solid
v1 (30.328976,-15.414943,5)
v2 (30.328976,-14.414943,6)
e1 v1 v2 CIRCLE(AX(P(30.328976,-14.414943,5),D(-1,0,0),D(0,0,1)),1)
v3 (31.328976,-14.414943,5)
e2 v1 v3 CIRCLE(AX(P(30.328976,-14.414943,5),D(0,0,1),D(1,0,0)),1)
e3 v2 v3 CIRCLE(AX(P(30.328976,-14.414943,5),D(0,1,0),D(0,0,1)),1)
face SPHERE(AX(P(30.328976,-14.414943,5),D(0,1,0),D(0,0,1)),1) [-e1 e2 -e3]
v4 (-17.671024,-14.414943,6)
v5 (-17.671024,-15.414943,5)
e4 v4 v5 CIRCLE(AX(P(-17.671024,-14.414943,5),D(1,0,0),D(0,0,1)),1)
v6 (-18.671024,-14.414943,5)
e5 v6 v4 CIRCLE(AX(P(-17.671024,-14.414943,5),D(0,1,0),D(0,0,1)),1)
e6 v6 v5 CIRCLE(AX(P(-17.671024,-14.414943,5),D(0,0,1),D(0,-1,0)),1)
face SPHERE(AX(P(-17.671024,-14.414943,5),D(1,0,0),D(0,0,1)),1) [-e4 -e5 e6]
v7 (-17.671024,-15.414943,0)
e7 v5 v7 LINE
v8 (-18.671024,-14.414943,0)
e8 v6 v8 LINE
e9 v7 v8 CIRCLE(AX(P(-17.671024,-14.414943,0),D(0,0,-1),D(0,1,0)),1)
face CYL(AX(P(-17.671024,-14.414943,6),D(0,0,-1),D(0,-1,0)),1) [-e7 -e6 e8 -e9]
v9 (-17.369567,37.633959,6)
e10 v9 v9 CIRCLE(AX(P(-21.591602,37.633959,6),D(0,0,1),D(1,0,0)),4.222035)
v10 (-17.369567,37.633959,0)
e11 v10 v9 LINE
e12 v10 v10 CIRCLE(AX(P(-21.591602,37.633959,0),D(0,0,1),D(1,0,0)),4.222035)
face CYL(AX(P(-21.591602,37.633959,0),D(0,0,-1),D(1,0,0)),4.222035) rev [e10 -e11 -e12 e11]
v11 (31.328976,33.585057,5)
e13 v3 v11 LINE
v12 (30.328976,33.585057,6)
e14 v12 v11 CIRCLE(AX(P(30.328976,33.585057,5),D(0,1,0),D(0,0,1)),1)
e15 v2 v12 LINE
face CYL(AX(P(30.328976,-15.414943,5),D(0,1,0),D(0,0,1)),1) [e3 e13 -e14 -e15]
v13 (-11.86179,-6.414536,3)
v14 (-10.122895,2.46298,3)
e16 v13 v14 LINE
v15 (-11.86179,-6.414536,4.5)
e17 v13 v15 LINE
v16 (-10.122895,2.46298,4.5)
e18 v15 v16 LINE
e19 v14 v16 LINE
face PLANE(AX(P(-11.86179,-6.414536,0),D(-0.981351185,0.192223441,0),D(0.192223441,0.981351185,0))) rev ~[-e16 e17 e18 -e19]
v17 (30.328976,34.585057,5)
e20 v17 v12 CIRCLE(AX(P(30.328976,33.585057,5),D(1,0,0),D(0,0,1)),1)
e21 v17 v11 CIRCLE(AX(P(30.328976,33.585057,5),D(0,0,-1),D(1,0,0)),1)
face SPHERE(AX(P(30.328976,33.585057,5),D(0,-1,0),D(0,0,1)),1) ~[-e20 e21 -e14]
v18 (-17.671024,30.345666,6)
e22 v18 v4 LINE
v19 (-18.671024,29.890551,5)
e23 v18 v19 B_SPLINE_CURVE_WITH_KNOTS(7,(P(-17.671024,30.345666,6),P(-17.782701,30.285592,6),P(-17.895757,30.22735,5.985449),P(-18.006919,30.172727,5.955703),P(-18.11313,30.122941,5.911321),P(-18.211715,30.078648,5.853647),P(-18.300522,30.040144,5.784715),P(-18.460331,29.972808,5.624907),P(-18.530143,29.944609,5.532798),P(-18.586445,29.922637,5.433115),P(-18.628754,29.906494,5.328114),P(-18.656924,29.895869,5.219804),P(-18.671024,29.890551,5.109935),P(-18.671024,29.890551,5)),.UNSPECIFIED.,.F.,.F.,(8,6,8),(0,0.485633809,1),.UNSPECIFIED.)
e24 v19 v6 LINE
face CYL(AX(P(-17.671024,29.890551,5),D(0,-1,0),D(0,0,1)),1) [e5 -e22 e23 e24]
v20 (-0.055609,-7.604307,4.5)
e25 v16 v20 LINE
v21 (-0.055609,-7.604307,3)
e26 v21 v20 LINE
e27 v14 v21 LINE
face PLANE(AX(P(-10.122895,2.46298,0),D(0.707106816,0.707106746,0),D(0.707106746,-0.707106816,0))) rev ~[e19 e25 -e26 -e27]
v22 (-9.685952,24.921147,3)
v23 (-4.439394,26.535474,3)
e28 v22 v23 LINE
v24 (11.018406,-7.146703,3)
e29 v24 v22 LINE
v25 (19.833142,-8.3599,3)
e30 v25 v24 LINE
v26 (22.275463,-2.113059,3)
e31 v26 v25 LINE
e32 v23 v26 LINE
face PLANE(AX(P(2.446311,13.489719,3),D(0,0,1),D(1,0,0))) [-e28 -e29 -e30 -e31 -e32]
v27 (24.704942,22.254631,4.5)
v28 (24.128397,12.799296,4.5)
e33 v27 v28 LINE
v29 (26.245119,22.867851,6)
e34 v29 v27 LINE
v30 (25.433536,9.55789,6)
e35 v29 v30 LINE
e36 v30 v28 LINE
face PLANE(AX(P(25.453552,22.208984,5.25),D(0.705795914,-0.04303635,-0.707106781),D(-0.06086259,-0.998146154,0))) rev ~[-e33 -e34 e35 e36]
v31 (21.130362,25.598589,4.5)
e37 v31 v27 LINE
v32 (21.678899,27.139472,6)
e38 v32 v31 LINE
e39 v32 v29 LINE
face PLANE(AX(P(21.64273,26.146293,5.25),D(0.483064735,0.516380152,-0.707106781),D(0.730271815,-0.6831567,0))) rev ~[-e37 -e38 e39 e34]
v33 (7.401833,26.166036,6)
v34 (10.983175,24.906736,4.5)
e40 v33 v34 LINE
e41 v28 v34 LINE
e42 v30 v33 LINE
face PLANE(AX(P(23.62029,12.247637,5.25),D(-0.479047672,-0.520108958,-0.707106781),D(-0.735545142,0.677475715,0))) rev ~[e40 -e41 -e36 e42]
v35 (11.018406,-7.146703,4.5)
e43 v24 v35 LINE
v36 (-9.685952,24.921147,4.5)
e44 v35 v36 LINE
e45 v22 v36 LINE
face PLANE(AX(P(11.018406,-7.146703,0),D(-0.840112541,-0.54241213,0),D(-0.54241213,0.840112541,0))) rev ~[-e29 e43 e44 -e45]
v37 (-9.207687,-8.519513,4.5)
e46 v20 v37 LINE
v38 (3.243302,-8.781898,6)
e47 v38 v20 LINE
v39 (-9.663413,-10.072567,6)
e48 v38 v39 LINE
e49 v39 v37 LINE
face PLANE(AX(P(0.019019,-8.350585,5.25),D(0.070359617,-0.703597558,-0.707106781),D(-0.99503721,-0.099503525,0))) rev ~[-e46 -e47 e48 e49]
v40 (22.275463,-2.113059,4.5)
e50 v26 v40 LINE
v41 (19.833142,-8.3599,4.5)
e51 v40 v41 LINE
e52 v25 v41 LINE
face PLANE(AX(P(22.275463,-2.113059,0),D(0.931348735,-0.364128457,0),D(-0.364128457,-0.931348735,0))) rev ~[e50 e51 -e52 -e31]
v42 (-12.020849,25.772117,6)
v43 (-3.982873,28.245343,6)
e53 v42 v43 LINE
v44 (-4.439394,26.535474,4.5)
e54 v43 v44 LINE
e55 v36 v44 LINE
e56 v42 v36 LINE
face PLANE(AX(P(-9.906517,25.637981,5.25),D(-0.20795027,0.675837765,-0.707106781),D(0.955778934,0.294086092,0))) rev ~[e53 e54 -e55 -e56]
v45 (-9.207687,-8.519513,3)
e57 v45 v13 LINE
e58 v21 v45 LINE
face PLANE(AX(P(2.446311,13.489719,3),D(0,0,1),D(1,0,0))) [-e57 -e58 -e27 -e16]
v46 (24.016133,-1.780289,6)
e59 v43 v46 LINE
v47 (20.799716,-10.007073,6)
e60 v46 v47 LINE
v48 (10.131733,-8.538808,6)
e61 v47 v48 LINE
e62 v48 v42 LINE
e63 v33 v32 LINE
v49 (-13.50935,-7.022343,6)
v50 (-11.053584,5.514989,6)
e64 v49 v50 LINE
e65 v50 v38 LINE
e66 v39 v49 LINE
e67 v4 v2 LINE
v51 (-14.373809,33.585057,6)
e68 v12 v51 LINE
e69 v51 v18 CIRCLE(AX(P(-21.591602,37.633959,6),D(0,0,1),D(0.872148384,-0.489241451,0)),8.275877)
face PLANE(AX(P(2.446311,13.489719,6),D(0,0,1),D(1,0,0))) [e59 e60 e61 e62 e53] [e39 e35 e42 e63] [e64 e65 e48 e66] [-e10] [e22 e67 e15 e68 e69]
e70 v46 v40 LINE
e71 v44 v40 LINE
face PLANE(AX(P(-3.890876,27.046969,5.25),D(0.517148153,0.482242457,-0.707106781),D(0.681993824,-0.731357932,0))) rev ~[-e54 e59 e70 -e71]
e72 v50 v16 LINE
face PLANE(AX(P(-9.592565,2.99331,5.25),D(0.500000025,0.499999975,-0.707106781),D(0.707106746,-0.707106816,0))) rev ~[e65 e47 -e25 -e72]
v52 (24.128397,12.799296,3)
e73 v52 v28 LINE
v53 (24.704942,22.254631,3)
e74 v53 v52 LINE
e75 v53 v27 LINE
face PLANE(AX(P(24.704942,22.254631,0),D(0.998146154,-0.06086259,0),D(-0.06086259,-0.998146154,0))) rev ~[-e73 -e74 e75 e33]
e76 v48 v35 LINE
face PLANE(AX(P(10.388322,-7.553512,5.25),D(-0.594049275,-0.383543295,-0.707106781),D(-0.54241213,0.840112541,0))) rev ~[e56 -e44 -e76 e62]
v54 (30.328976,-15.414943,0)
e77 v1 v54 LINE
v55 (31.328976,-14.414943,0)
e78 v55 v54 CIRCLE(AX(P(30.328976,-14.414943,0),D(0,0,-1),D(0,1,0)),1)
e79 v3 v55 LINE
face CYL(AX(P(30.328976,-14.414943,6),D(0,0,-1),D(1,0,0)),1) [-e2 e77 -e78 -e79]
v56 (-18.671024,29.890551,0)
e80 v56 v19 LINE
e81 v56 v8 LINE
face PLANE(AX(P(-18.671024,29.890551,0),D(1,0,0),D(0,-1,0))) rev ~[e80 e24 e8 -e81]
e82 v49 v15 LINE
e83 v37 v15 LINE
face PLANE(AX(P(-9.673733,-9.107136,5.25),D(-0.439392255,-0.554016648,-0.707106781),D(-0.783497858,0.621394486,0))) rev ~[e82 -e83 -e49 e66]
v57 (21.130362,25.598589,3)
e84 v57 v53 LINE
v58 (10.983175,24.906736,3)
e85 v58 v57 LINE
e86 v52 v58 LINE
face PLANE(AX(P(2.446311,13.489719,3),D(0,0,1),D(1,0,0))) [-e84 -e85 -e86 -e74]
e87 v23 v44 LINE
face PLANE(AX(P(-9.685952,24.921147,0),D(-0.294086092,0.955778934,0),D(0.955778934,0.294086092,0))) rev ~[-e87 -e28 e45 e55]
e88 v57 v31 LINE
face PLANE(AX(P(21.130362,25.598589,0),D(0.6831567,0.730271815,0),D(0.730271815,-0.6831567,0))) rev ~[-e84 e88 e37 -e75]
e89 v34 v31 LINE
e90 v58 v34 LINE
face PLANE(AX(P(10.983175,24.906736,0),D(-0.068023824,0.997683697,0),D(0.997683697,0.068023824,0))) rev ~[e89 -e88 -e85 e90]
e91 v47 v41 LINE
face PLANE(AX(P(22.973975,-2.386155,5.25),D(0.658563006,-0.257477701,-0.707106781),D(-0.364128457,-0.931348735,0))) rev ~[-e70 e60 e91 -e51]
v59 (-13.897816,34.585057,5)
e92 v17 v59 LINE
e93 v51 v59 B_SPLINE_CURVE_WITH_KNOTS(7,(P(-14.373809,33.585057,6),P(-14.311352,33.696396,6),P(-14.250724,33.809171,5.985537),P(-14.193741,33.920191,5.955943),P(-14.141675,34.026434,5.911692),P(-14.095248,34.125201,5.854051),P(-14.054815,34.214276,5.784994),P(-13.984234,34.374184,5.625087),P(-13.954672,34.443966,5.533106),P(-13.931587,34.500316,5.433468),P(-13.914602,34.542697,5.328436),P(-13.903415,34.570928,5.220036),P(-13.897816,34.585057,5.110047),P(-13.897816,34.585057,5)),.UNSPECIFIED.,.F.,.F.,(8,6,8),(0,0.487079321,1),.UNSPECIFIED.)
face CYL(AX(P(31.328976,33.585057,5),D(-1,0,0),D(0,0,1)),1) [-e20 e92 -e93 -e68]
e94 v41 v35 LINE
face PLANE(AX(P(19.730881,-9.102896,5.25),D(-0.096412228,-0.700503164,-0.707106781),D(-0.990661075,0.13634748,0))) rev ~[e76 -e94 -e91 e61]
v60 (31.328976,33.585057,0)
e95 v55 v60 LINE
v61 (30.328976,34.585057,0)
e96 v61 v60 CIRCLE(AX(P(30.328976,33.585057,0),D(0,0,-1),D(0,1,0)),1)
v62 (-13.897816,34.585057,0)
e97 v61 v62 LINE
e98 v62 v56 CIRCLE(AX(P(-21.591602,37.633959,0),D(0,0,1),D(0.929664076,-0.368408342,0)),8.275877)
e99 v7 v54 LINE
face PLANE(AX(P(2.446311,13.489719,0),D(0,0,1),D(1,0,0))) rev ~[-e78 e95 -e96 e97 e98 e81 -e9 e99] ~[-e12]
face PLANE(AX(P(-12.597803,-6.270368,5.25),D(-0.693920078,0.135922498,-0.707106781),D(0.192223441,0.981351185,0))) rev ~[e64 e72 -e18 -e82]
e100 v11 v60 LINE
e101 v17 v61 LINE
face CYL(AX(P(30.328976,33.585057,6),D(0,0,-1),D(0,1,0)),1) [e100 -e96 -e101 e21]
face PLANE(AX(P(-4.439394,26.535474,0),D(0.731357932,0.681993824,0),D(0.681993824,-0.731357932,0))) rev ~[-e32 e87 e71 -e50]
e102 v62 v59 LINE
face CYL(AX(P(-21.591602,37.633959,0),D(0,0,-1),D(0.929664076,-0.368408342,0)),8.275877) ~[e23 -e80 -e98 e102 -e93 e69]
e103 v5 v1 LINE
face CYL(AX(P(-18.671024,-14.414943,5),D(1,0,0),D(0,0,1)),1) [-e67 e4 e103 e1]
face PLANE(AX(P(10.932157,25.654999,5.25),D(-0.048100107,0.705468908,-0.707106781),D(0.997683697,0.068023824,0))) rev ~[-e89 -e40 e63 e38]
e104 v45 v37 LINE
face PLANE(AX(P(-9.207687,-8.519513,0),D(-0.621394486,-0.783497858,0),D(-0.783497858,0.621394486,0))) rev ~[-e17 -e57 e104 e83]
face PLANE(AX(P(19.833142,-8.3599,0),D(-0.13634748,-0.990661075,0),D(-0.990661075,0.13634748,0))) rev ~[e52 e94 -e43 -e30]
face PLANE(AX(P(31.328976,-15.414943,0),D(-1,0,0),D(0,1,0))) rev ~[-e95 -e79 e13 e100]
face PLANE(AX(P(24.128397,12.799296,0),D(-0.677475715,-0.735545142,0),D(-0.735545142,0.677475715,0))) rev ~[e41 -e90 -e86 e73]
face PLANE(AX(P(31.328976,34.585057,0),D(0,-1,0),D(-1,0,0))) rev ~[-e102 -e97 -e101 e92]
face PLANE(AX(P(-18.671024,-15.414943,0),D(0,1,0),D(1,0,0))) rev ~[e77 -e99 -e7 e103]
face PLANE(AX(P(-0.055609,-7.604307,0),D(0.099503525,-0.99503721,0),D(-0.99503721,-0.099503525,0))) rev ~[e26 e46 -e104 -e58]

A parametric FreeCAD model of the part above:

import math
import FreeCAD as App
import Part
import Sketcher
Q = App.Units.Quantity


def edges_at(feature, points):
    """Names of the edges that pass closest to the given points."""
    edges = feature.Shape.Edges
    near = lambda p: min(range(len(edges)), key=lambda i: edges[i].distToShape(Part.Vertex(*p))[0])
    return sorted({f"Edge{near(p) + 1}" for p in points})


def add_polygon(sketch, points):
    """Adds a closed chain of lines whose ends are joined by coincident constraints."""
    first, n = sketch.GeometryCount, len(points)
    for a, b in zip(points, points[1:] + points[:1]):
        sketch.addGeometry(Part.LineSegment(App.Vector(*a, 0), App.Vector(*b, 0)), False)
    for i in range(n):
        sketch.addConstraint(Sketcher.Constraint("Coincident", first + i, 2, first + (i + 1) % n, 1))

doc = App.newDocument("Part")
body = doc.addObject("PartDesign::Body", "Body")

# Sketch on XY plane
sketch1 = doc.addObject("Sketcher::SketchObject", "Sketch")
body.addObject(sketch1)
sketch1.AttachmentSupport = (doc.XY_Plane, [""])
sketch1.MapMode = "FlatFace"
sketch1.addGeometry(Part.LineSegment(App.Vector(31.3, 34.6, 0), App.Vector(-13.9, 34.6, 0)), False)  # 0
sketch1.addGeometry(Part.ArcOfCircle(Part.Circle(App.Vector(-21.6, 37.6, 0), App.Vector(0, 0, 1), 8.3), math.radians(-22), math.radians(291)), False)  # 1
sketch1.addGeometry(Part.LineSegment(App.Vector(-18.7, 29.9, 0), App.Vector(-18.7, -15.4, 0)), False)  # 2
sketch1.addGeometry(Part.LineSegment(App.Vector(-18.7, -15.4, 0), App.Vector(31.3, -15.4, 0)), False)  # 3
sketch1.addGeometry(Part.LineSegment(App.Vector(31.3, -15.4, 0), App.Vector(31.3, 34.6, 0)), False)  # 4
add_polygon(sketch1, [(-11.9, -6.4), (-10.1, 2.5), (-0.1, -7.6), (-9.2, -8.5)])  # lines 5-8
add_polygon(sketch1, [(19.8, -8.4), (11, -7.1), (-9.7, 24.9), (-4.4, 26.5), (22.3, -2.1)])  # lines 9-13
sketch1.addGeometry(Part.Circle(App.Vector(-21.6, 37.6, 0), App.Vector(0, 0, 1), 4.2), False)  # 14
add_polygon(sketch1, [(24.7, 22.3), (24.1, 12.8), (11, 24.9), (21.1, 25.6)])  # lines 15-18
sketch1.addConstraint([
    Sketcher.Constraint("Coincident", 0, 2, 1, 1),
    Sketcher.Constraint("Coincident", 1, 2, 2, 1),
    Sketcher.Constraint("Coincident", 2, 2, 3, 1),
    Sketcher.Constraint("Coincident", 3, 2, 4, 1),
    Sketcher.Constraint("Coincident", 4, 2, 0, 1),
    Sketcher.Constraint("Horizontal", 0),
    Sketcher.Constraint("Vertical", 2),
    Sketcher.Constraint("Horizontal", 3),
    Sketcher.Constraint("Vertical", 4),
    Sketcher.Constraint("Coincident", 14, 3, 1, 3),
    Sketcher.Constraint("Equal", 3, 4),
    Sketcher.Constraint("DistanceX", 3, 1, 3, 2, 50.0),
    Sketcher.Constraint("Angle", 6, Q("-45.000003 deg")),
    Sketcher.Constraint("Diameter", 14, 8.44407),
    Sketcher.Constraint("Radius", 1, 8.275877),
    Sketcher.Constraint("DistanceY", 9, 2, 15, 2, 19.945999),
    Sketcher.Constraint("Distance", 11, 5.489301),
    Sketcher.Constraint("Distance", 12, 39.171699),
    Sketcher.Constraint("Distance", 16, 17.871401),
    Sketcher.Constraint("DistanceX", 1, 3, -1, 1, 21.591602),
    Sketcher.Constraint("DistanceY", 13, 2, -1, 1, 8.3599),
    Sketcher.Constraint("DistanceY", 0, 2, 14, 3, 3.048902),
    Sketcher.Constraint("DistanceX", 5, 2, 9, 2, 21.141301),
    Sketcher.Constraint("DistanceX", 16, 2, 4, 2, 20.345801),
    Sketcher.Constraint("DistanceX", 17, 2, 12, 2, 1.145101),
    Sketcher.Constraint("DistanceX", 0, 2, 0, 1, 45.226792),
    Sketcher.Constraint("DistanceY", -1, 1, 1, 3, 37.633959),
    Sketcher.Constraint("DistanceY", -1, 1, 5, 2, 2.46298),
    Sketcher.Constraint("DistanceX", 6, 2, -1, 1, 0.055609),
    Sketcher.Constraint("DistanceX", 8, 2, -1, 1, 11.86179),
    Sketcher.Constraint("DistanceY", 12, 2, -1, 1, 2.113059),
    Sketcher.Constraint("DistanceX", -1, 1, 13, 2, 19.833142),
    Sketcher.Constraint("DistanceY", -1, 1, 17, 2, 25.598589),
    Sketcher.Constraint("DistanceX", -1, 1, 18, 2, 24.704942),
    Sketcher.Constraint("DistanceY", -1, 1, 18, 2, 22.254631),
    Sketcher.Constraint("DistanceX", 2, 2, 5, 2, 8.548129),
    Sketcher.Constraint("DistanceY", 2, 2, 7, 2, 6.89543),
    Sketcher.Constraint("DistanceY", 6, 2, 8, 2, 1.189771),
    Sketcher.Constraint("DistanceY", 7, 2, 9, 2, 1.37281),
    Sketcher.Constraint("DistanceX", 1, 2, 10, 2, 8.985072),
    Sketcher.Constraint("DistanceY", 10, 2, 0, 2, 9.66391),
    Sketcher.Constraint("DistanceX", 10, 2, 11, 2, 5.246558),
    Sketcher.Constraint("DistanceX", 7, 2, 12, 2, 31.48315),
    Sketcher.Constraint("DistanceX", 15, 2, 4, 2, 7.200579),
])
pad1 = doc.addObject("PartDesign::Pad", "Pad")
body.addObject(pad1)
pad1.Profile = sketch1
pad1.Length = 6

# Sketch on XY plane
sketch2 = doc.addObject("Sketcher::SketchObject", "Sketch001")
body.addObject(sketch2)
sketch2.AttachmentSupport = (doc.XY_Plane, [""])
sketch2.MapMode = "FlatFace"
sketch2.addGeometry([
    Part.LineSegment(App.Vector(31.3, 34.6, 0), App.Vector(-13.9, 34.6, 0)),  # 0
    Part.ArcOfCircle(Part.Circle(App.Vector(-21.6, 37.6, 0), App.Vector(0, 0, 1), 8.3), math.radians(-22), math.radians(291)),  # 1
    Part.LineSegment(App.Vector(-18.7, 29.9, 0), App.Vector(-18.7, -15.4, 0)),  # 2
    Part.LineSegment(App.Vector(-18.7, -15.4, 0), App.Vector(31.3, -15.4, 0)),  # 3
    Part.LineSegment(App.Vector(31.3, -15.4, 0), App.Vector(31.3, 34.6, 0)),  # 4
    Part.Circle(App.Vector(-21.6, 37.6, 0), App.Vector(0, 0, 1), 4.2),  # 5
], False)
sketch2.addConstraint([
    Sketcher.Constraint("Coincident", 0, 2, 1, 1),
    Sketcher.Constraint("Coincident", 1, 2, 2, 1),
    Sketcher.Constraint("Coincident", 2, 2, 3, 1),
    Sketcher.Constraint("Coincident", 3, 2, 4, 1),
    Sketcher.Constraint("Coincident", 4, 2, 0, 1),
    Sketcher.Constraint("Horizontal", 0),
    Sketcher.Constraint("Vertical", 2),
    Sketcher.Constraint("Horizontal", 3),
    Sketcher.Constraint("Vertical", 4),
    Sketcher.Constraint("Coincident", 5, 3, 1, 3),
    Sketcher.Constraint("Equal", 3, 4),
    Sketcher.Constraint("DistanceX", 3, 1, 3, 2, 50.0),
    Sketcher.Constraint("Diameter", 5, 8.44407),
    Sketcher.Constraint("Radius", 1, 8.275877),
    Sketcher.Constraint("DistanceX", 1, 3, -1, 1, 21.591602),
    Sketcher.Constraint("DistanceY", 0, 2, 5, 3, 3.048902),
    Sketcher.Constraint("DistanceX", 0, 2, 0, 1, 45.226792),
    Sketcher.Constraint("DistanceY", -1, 1, 1, 3, 37.633959),
])
pad2 = doc.addObject("PartDesign::Pad", "Pad001")
body.addObject(pad2)
pad2.Profile = sketch2
pad2.Length = 3
doc.recompute()

chamfer = doc.addObject("PartDesign::Chamfer", "Chamfer")
body.addObject(chamfer)
chamfer.Base = (pad2, edges_at(pad2, [
    (8.918, 12.211, 6),
    (-7.063, 25.728, 6),
    (0.666, 8.887, 6),
    (15.426, -7.753, 6),
    (21.054, -5.236, 6),
    (22.918, 23.927, 6),
    (16.057, 25.253, 6),
    (17.556, 18.853, 6),
    (24.417, 17.527, 6),
    (-5.089, -2.571, 6),
    (-10.992, -1.976, 6),
    (-10.535, -7.467, 6),
    (-4.632, -8.062, 6),
]))
chamfer.Size = 1.5
doc.recompute()

fillet = doc.addObject("PartDesign::Fillet", "Fillet")
body.addObject(fillet)
fillet.Base = (chamfer, edges_at(chamfer, [
    (31.329, 9.585, 6),
    (6.329, -15.415, 6),
    (8.716, 34.585, 6),
    (-18.671, 7.238, 6),
    (-18.671, -15.415, 3),
    (31.329, -15.415, 3),
    (31.329, 34.585, 3),
]))
fillet.Radius = 1

doc.recompute()
